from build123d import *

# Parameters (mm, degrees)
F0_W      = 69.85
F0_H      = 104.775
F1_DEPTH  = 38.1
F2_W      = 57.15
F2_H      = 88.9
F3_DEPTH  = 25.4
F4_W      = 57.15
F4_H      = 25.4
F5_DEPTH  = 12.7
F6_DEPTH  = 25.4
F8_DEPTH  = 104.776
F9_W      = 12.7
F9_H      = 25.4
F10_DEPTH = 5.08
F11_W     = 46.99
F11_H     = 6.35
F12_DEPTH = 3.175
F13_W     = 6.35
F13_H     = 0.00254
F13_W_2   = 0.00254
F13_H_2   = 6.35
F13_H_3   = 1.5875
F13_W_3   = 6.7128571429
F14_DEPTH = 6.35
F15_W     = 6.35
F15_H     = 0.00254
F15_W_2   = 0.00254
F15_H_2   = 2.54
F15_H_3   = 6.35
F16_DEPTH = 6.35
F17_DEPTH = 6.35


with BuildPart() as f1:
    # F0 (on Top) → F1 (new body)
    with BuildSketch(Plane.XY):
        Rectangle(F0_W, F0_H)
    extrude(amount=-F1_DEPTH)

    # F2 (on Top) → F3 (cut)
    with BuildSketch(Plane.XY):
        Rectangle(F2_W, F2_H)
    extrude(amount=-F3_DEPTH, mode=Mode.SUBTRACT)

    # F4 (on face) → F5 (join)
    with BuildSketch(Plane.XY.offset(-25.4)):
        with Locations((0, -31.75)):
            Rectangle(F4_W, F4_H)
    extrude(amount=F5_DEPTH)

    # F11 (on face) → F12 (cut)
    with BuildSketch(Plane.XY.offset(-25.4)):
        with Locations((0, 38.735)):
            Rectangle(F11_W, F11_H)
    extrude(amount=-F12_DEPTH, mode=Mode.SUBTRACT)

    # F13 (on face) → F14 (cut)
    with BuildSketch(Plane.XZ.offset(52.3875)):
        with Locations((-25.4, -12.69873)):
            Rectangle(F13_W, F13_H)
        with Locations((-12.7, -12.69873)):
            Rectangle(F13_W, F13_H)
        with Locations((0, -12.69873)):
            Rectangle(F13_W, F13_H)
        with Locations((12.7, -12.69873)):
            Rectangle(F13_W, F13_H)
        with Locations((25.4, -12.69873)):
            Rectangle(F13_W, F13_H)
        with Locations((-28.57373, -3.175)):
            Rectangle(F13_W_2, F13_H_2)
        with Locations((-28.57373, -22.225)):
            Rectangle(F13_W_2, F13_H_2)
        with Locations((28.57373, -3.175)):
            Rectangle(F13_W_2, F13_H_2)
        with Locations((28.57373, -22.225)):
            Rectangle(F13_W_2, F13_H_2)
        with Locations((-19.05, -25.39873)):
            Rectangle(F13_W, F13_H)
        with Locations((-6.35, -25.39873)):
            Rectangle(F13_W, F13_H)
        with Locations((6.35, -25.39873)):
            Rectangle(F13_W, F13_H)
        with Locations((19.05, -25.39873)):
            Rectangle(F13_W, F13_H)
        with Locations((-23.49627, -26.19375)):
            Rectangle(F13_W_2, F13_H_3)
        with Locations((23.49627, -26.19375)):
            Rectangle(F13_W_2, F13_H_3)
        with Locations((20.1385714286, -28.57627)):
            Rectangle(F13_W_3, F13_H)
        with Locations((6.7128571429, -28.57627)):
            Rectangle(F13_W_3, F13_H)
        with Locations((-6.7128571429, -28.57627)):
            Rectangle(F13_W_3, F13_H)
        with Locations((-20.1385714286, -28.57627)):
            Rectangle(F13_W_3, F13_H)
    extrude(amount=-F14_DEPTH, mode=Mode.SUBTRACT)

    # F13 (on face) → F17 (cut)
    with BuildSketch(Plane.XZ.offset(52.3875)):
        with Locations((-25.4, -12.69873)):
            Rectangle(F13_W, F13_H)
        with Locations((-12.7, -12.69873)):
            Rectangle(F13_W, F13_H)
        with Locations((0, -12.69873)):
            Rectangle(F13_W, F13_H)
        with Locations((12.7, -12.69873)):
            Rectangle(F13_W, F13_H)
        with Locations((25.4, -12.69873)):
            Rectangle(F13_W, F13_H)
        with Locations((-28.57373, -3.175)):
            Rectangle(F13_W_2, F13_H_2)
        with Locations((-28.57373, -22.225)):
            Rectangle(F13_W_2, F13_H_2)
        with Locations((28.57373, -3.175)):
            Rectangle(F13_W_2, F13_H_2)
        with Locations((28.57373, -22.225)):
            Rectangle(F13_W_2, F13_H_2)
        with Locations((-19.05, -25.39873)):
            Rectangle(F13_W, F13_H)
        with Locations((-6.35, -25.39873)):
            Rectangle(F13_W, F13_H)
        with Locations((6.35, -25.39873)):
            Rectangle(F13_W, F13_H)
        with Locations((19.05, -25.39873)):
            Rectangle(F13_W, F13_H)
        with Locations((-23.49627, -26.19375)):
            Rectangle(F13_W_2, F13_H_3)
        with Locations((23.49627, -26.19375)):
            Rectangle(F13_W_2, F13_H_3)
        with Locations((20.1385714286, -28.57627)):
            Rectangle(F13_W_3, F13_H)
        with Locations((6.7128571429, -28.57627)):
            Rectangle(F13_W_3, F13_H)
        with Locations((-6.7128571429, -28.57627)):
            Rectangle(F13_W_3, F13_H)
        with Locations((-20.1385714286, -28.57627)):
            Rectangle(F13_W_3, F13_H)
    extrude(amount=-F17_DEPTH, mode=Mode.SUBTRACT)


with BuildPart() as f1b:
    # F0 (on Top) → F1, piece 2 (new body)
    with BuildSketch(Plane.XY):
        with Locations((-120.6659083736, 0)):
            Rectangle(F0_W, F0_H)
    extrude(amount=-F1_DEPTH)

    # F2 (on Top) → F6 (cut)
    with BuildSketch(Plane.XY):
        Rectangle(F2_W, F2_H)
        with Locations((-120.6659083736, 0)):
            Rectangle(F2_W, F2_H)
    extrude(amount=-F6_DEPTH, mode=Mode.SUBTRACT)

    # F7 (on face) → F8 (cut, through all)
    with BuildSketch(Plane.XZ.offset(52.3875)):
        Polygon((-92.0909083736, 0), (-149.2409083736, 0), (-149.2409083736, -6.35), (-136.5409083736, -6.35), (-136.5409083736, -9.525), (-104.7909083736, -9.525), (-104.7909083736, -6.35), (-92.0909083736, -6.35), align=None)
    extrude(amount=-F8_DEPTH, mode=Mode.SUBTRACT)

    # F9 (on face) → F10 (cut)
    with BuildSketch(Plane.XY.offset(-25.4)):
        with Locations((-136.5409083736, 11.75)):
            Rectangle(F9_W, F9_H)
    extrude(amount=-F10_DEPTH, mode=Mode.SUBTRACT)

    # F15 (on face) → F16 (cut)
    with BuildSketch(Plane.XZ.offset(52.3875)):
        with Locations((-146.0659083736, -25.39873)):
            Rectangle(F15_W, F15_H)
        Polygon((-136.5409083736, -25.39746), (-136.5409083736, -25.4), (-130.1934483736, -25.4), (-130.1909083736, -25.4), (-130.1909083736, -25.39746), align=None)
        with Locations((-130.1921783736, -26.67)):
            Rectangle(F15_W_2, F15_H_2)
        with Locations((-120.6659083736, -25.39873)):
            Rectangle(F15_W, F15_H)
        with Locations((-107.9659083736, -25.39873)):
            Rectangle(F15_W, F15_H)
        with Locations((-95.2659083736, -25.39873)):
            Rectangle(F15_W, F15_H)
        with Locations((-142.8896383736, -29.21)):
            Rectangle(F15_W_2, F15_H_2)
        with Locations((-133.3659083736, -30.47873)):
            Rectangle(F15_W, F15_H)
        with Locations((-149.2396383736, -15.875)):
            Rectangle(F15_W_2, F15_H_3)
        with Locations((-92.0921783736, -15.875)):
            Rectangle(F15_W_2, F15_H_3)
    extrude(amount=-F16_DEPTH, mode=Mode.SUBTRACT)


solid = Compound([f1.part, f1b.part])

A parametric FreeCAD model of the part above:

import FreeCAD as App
import Part
import Sketcher
from FreeCAD import Vector
Q = App.Units.Quantity


def add_polygon(sketch, points):
    """Adds a closed chain of lines whose ends are joined by coincident constraints."""
    first, n = sketch.GeometryCount, len(points)
    for a, b in zip(points, points[1:] + points[:1]):
        sketch.addGeometry(Part.LineSegment(App.Vector(*a, 0), App.Vector(*b, 0)), False)
    for i in range(n):
        sketch.addConstraint(Sketcher.Constraint("Coincident", first + i, 2, first + (i + 1) % n, 1))

doc = App.newDocument("Part")
params = doc.addObject("Spreadsheet::Sheet", "Params")
for row, (alias, value) in enumerate([
    ("sketch1_width", "2.75 in"),
    ("sketch1_height", "4.125 in"),
    ("pad1_length", "1.5 in"),
    ("sketch2_height", "3.5 in"),
    ("sketch2_width", "2.25 in"),
    ("pocket1_length", "1 in"),
    ("sketch3_height", "1 in"),
    ("sketch3_width", "2.25 in"),
    ("pad2_length", "0.5 in"),
    ("sketch4_width", "1.85 in"),
    ("sketch4_height", "0.25 in"),
    ("pocket2_length", "0.125 in"),
    ("sketch5_width", "0.25 in"),
    ("sketch5_height", "0.0625 in"),
    ("pocket3_length", "0.25 in"),
    ("sketch6_width", "0.25 in"),
    ("sketch6_height", "0.0625 in"),
    ("pocket4_length", "0.25 in"),
    ("sketch7_width", "2.75 in"),
    ("sketch7_height", "4.125 in"),
    ("pad3_length", "1.5 in"),
    ("sketch8_height", "3.5 in"),
    ("sketch8_width", "2.25 in"),
    ("pocket5_length", "1 in"),
    ("sketch9_width", "0.5 in"),
    ("sketch9_width2", "2.25 in"),
    ("sketch9_height", "0.25 in"),
    ("sketch9_height2", "0.125 in"),
    ("sketch10_height", "1 in"),
    ("sketch10_width", "0.5 in"),
    ("pocket7_length", "0.2 in"),
    ("sketch11_height", "0.1 in"),
    ("sketch11_width", "0.25 in"),
    ("pocket8_length", "0.25 in"),
], start=1):
    params.set(f"A{row}", alias)
    params.set(f"B{row}", "=" + value)
    params.setAlias(f"B{row}", alias)

body = doc.addObject("PartDesign::Body", "Body")

# Sketch on XY plane
sketch1 = doc.addObject("Sketcher::SketchObject", "Sketch")
body.addObject(sketch1)
sketch1.AttachmentSupport = (doc.XY_Plane, [""])
sketch1.MapMode = "FlatFace"
add_polygon(sketch1, [(-34.925, 52.3875), (-34.925, -52.3875), (34.925, -52.3875), (34.925, 52.3875)])  # lines 0-3
sketch1.addConstraint([
    Sketcher.Constraint("Vertical", 0),
    Sketcher.Constraint("Horizontal", 1),
    Sketcher.Constraint("Vertical", 2),
    Sketcher.Constraint("Horizontal", 3),
    Sketcher.Constraint("Symmetric", 0, 2, 2, 2, -1, 1),
    Sketcher.Constraint("DistanceX", 1, 1, 1, 2, Q("2.75 in")),
    Sketcher.Constraint("DistanceY", 0, 2, 0, 1, Q("4.125 in")),
])
sketch1.setExpression("Constraints[9]", "Params.sketch1_width")
sketch1.setExpression("Constraints[10]", "Params.sketch1_height")
pad1 = doc.addObject("PartDesign::Pad", "Pad")
body.addObject(pad1)
pad1.Profile = sketch1
pad1.setExpression("Length", "Params.pad1_length")
pad1.Reversed = True

# Sketch on XY plane
sketch2 = doc.addObject("Sketcher::SketchObject", "Sketch001")
body.addObject(sketch2)
sketch2.AttachmentSupport = (doc.XY_Plane, [""])
sketch2.MapMode = "FlatFace"
add_polygon(sketch2, [(-28.575, 44.45), (-28.575, -44.45), (28.575, -44.45), (28.575, 44.45)])  # lines 0-3
sketch2.addConstraint([
    Sketcher.Constraint("Vertical", 0),
    Sketcher.Constraint("Horizontal", 1),
    Sketcher.Constraint("Vertical", 2),
    Sketcher.Constraint("Horizontal", 3),
    Sketcher.Constraint("Symmetric", 0, 2, 2, 2, -1, 1),
    Sketcher.Constraint("DistanceY", 0, 2, 0, 1, Q("3.5 in")),
    Sketcher.Constraint("DistanceX", 1, 1, 1, 2, Q("2.25 in")),
])
sketch2.setExpression("Constraints[9]", "Params.sketch2_height")
sketch2.setExpression("Constraints[10]", "Params.sketch2_width")
pocket1 = doc.addObject("PartDesign::Pocket", "Pocket")
body.addObject(pocket1)
pocket1.Profile = sketch2
pocket1.setExpression("Length", "Params.pocket1_length")

# Sketch on XY plane
sketch3 = doc.addObject("Sketcher::SketchObject", "Sketch002")
body.addObject(sketch3)
sketch3.AttachmentSupport = (doc.XY_Plane, [""])
sketch3.MapMode = "FlatFace"
sketch3.AttachmentOffset = App.Placement(Vector(0, 0, -1 * 25.4), App.Rotation())
add_polygon(sketch3, [(-28.575, -19.05), (-28.575, -44.45), (28.575, -44.45), (28.575, -19.05)])  # lines 0-3
sketch3.addConstraint([
    Sketcher.Constraint("Vertical", 0),
    Sketcher.Constraint("Horizontal", 1),
    Sketcher.Constraint("Vertical", 2),
    Sketcher.Constraint("Horizontal", 3),
    Sketcher.Constraint("DistanceY", 0, 2, 0, 1, Q("1 in")),
    Sketcher.Constraint("DistanceX", 1, 1, 1, 2, Q("2.25 in")),
    Sketcher.Constraint("DistanceY", 0, 2, -1, 1, Q("1.75 in")),
    Sketcher.Constraint("DistanceX", 0, 2, -1, 1, Q("1.125 in")),
])
sketch3.setExpression("Constraints[8]", "Params.sketch3_height")
sketch3.setExpression("Constraints[9]", "Params.sketch3_width")
pad2 = doc.addObject("PartDesign::Pad", "Pad001")
body.addObject(pad2)
pad2.Profile = sketch3
pad2.setExpression("Length", "Params.pad2_length")

# Sketch on XY plane
sketch4 = doc.addObject("Sketcher::SketchObject", "Sketch003")
body.addObject(sketch4)
sketch4.AttachmentSupport = (doc.XY_Plane, [""])
sketch4.MapMode = "FlatFace"
sketch4.AttachmentOffset = App.Placement(Vector(0, 0, -1 * 25.4), App.Rotation())
add_polygon(sketch4, [(-23.495, 41.91), (-23.495, 35.56), (23.495, 35.56), (23.495, 41.91)])  # lines 0-3
sketch4.addConstraint([
    Sketcher.Constraint("Vertical", 0),
    Sketcher.Constraint("Horizontal", 1),
    Sketcher.Constraint("Vertical", 2),
    Sketcher.Constraint("Horizontal", 3),
    Sketcher.Constraint("DistanceX", 1, 1, 1, 2, Q("1.85 in")),
    Sketcher.Constraint("DistanceY", 0, 2, 0, 1, Q("0.25 in")),
    Sketcher.Constraint("DistanceY", -1, 1, 0, 2, Q("1.4 in")),
    Sketcher.Constraint("DistanceX", 0, 2, -1, 1, Q("0.925 in")),
])
sketch4.setExpression("Constraints[8]", "Params.sketch4_width")
sketch4.setExpression("Constraints[9]", "Params.sketch4_height")
pocket2 = doc.addObject("PartDesign::Pocket", "Pocket001")
body.addObject(pocket2)
pocket2.Profile = sketch4
pocket2.setExpression("Length", "Params.pocket2_length")

# Sketch on XZ plane
sketch5 = doc.addObject("Sketcher::SketchObject", "Sketch004")
body.addObject(sketch5)
sketch5.AttachmentSupport = (doc.XZ_Plane, [""])
sketch5.MapMode = "FlatFace"
sketch5.AttachmentOffset = App.Placement(Vector(0, 0, 2.0625 * 25.4), App.Rotation())
add_polygon(sketch5, [(-28.575, -12.69746), (-28.575, -12.7), (-22.225, -12.7), (-22.225, -12.69746)])  # lines 0-3
add_polygon(sketch5, [(-15.875, -12.69746), (-15.875, -12.7), (-9.525, -12.7), (-9.525, -12.69746)])  # lines 4-7
add_polygon(sketch5, [(-3.175, -12.69746), (-3.175, -12.7), (3.175, -12.7), (3.175, -12.69746)])  # lines 8-11
add_polygon(sketch5, [(9.525, -12.69746), (9.525, -12.7), (15.875, -12.7), (15.875, -12.69746)])  # lines 12-15
add_polygon(sketch5, [(22.225, -12.69746), (22.225, -12.7), (28.575, -12.7), (28.575, -12.69746)])  # lines 16-19
add_polygon(sketch5, [(-28.575, 0), (-28.575, -6.35), (-28.57246, -6.35), (-28.57246, 0)])  # lines 20-23
add_polygon(sketch5, [(-28.575, -19.05), (-28.575, -25.4), (-28.57246, -25.4), (-28.57246, -19.05)])  # lines 24-27
add_polygon(sketch5, [(28.57246, 0), (28.57246, -6.35), (28.575, -6.35), (28.575, 0)])  # lines 28-31
add_polygon(sketch5, [(28.57246, -19.05), (28.57246, -25.4), (28.575, -25.4), (28.575, -19.05)])  # lines 32-35
add_polygon(sketch5, [(-22.225, -25.39746), (-22.225, -25.4), (-15.875, -25.4), (-15.875, -25.39746)])  # lines 36-39
add_polygon(sketch5, [(-9.525, -25.39746), (-9.525, -25.4), (-3.175, -25.4), (-3.175, -25.39746)])  # lines 40-43
add_polygon(sketch5, [(3.175, -25.39746), (3.175, -25.4), (9.525, -25.4), (9.525, -25.39746)])  # lines 44-47
add_polygon(sketch5, [(15.875, -25.39746), (15.875, -25.4), (22.225, -25.4), (22.225, -25.39746)])  # lines 48-51
add_polygon(sketch5, [(-23.49754, -25.4), (-23.49754, -26.9875), (-23.495, -26.9875), (-23.495, -25.4)])  # lines 52-55
add_polygon(sketch5, [(23.495, -25.4), (23.495, -26.9875), (23.49754, -26.9875), (23.49754, -25.4)])  # lines 56-59
add_polygon(sketch5, [(16.782143, -28.575), (16.782143, -28.57754), (23.495, -28.57754), (23.495, -28.575)])  # lines 60-63
add_polygon(sketch5, [(3.356429, -28.575), (3.356429, -28.57754), (10.069286, -28.57754), (10.069286, -28.575)])  # lines 64-67
add_polygon(sketch5, [(-10.069286, -28.575), (-10.069286, -28.57754), (-3.356429, -28.57754), (-3.356429, -28.575)])  # lines 68-71
add_polygon(sketch5, [(-23.495, -28.575), (-23.495, -28.57754), (-16.782143, -28.57754), (-16.782143, -28.575)])  # lines 72-75
sketch5.addConstraint([
    Sketcher.Constraint("Vertical", 0),
    Sketcher.Constraint("Horizontal", 1),
    Sketcher.Constraint("Vertical", 2),
    Sketcher.Constraint("Horizontal", 3),
    Sketcher.Constraint("Vertical", 4),
    Sketcher.Constraint("Horizontal", 5),
    Sketcher.Constraint("Vertical", 6),
    Sketcher.Constraint("Horizontal", 7),
    Sketcher.Constraint("Vertical", 8),
    Sketcher.Constraint("Horizontal", 9),
    Sketcher.Constraint("Vertical", 10),
    Sketcher.Constraint("Horizontal", 11),
    Sketcher.Constraint("Vertical", 12),
    Sketcher.Constraint("Horizontal", 13),
    Sketcher.Constraint("Vertical", 14),
    Sketcher.Constraint("Horizontal", 15),
    Sketcher.Constraint("Vertical", 16),
    Sketcher.Constraint("Horizontal", 17),
    Sketcher.Constraint("Vertical", 18),
    Sketcher.Constraint("Horizontal", 19),
    Sketcher.Constraint("Vertical", 20),
    Sketcher.Constraint("Horizontal", 21),
    Sketcher.Constraint("Vertical", 22),
    Sketcher.Constraint("Horizontal", 23),
    Sketcher.Constraint("Vertical", 24),
    Sketcher.Constraint("Horizontal", 25),
    Sketcher.Constraint("Vertical", 26),
    Sketcher.Constraint("Horizontal", 27),
    Sketcher.Constraint("Vertical", 28),
    Sketcher.Constraint("Horizontal", 29),
    Sketcher.Constraint("Vertical", 30),
    Sketcher.Constraint("Horizontal", 31),
    Sketcher.Constraint("Vertical", 32),
    Sketcher.Constraint("Horizontal", 33),
    Sketcher.Constraint("Vertical", 34),
    Sketcher.Constraint("Horizontal", 35),
    Sketcher.Constraint("Vertical", 36),
    Sketcher.Constraint("Horizontal", 37),
    Sketcher.Constraint("Vertical", 38),
    Sketcher.Constraint("Horizontal", 39),
    Sketcher.Constraint("Vertical", 40),
    Sketcher.Constraint("Horizontal", 41),
    Sketcher.Constraint("Vertical", 42),
    Sketcher.Constraint("Horizontal", 43),
    Sketcher.Constraint("Vertical", 44),
    Sketcher.Constraint("Horizontal", 45),
    Sketcher.Constraint("Vertical", 46),
    Sketcher.Constraint("Horizontal", 47),
    Sketcher.Constraint("Vertical", 48),
    Sketcher.Constraint("Horizontal", 49),
    Sketcher.Constraint("Vertical", 50),
    Sketcher.Constraint("Horizontal", 51),
    Sketcher.Constraint("Vertical", 52),
    Sketcher.Constraint("Horizontal", 53),
    Sketcher.Constraint("Vertical", 54),
    Sketcher.Constraint("Horizontal", 55),
    Sketcher.Constraint("Vertical", 56),
    Sketcher.Constraint("Horizontal", 57),
    Sketcher.Constraint("Vertical", 58),
    Sketcher.Constraint("Horizontal", 59),
    Sketcher.Constraint("Vertical", 60),
    Sketcher.Constraint("Horizontal", 61),
    Sketcher.Constraint("Vertical", 62),
    Sketcher.Constraint("Horizontal", 63),
    Sketcher.Constraint("Vertical", 64),
    Sketcher.Constraint("Horizontal", 65),
    Sketcher.Constraint("Vertical", 66),
    Sketcher.Constraint("Horizontal", 67),
    Sketcher.Constraint("Vertical", 68),
    Sketcher.Constraint("Horizontal", 69),
    Sketcher.Constraint("Vertical", 70),
    Sketcher.Constraint("Horizontal", 71),
    Sketcher.Constraint("Vertical", 72),
    Sketcher.Constraint("Horizontal", 73),
    Sketcher.Constraint("Vertical", 74),
    Sketcher.Constraint("Horizontal", 75),
    Sketcher.Constraint("Symmetric", 23, 2, 30, 2, -1, 1),
    Sketcher.Constraint("Symmetric", 5, 2, 12, 2, -2),
    Sketcher.Constraint("Symmetric", 7, 2, 14, 2, -2),
    Sketcher.Constraint("Symmetric", 1, 2, 16, 2, -2),
    Sketcher.Constraint("Symmetric", 3, 2, 18, 2, -2),
    Sketcher.Constraint("Symmetric", 21, 2, 28, 2, -2),
    Sketcher.Constraint("Symmetric", 25, 2, 32, 2, -2),
    Sketcher.Constraint("Symmetric", 27, 2, 34, 2, -2),
    Sketcher.Constraint("Symmetric", 41, 2, 44, 2, -2),
    Sketcher.Constraint("Symmetric", 43, 2, 46, 2, -2),
    Sketcher.Constraint("Symmetric", 37, 2, 48, 2, -2),
    Sketcher.Constraint("Symmetric", 39, 2, 50, 2, -2),
    Sketcher.Constraint("Symmetric", 53, 2, 56, 2, -2),
    Sketcher.Constraint("Symmetric", 55, 2, 58, 2, -2),
    Sketcher.Constraint("Symmetric", 65, 2, 68, 2, -2),
    Sketcher.Constraint("Symmetric", 67, 2, 70, 2, -2),
    Sketcher.Constraint("Symmetric", 61, 2, 72, 2, -2),
    Sketcher.Constraint("Symmetric", 63, 2, 74, 2, -2),
    Sketcher.Constraint("PointOnObject", 22, 2, -1),
    Sketcher.Constraint("Horizontal", 1, 2, 4, 2),
    Sketcher.Constraint("Horizontal", 3, 2, 6, 2),
    Sketcher.Constraint("Horizontal", 5, 2, 8, 2),
    Sketcher.Constraint("Horizontal", 7, 2, 10, 2),
    Sketcher.Constraint("Horizontal", 33, 2, 36, 2),
    Sketcher.Constraint("Horizontal", 37, 2, 40, 2),
    Sketcher.Constraint("Horizontal", 39, 2, 42, 2),
    Sketcher.Constraint("Horizontal", 49, 2, 54, 2),
    Sketcher.Constraint("Horizontal", 61, 2, 64, 2),
    Sketcher.Constraint("Horizontal", 63, 2, 66, 2),
    Sketcher.Constraint("Vertical", 3, 2, 20, 2),
    Sketcher.Constraint("Vertical", 23, 2, 24, 2),
    Sketcher.Constraint("Vertical", 22, 2, 25, 2),
    Sketcher.Constraint("Vertical", 2, 2, 36, 2),
    Sketcher.Constraint("Vertical", 7, 2, 37, 2),
    Sketcher.Constraint("Vertical", 6, 2, 40, 2),
    Sketcher.Constraint("Vertical", 11, 2, 41, 2),
    Sketcher.Constraint("Vertical", 10, 2, 44, 2),
    Sketcher.Constraint("Vertical", 59, 2, 61, 2),
    Sketcher.Constraint("Equal", 3, 5),
    Sketcher.Constraint("Equal", 7, 9),
    Sketcher.Constraint("Equal", 19, 37),
    Sketcher.Constraint("Equal", 39, 41),
    Sketcher.Constraint("Equal", 35, 53),
    Sketcher.Constraint("Equal", 63, 65),
    Sketcher.Constraint("Equal", 59, 0),
    Sketcher.Constraint("Equal", 51, 20),
    Sketcher.Constraint("Equal", 22, 24),
    Sketcher.Constraint("Equal", 18, 36),
    Sketcher.Constraint("Equal", 50, 60),
    Sketcher.Constraint("DistanceY", 24, 2, -1, 1, Q("1 in")),
    Sketcher.Constraint("DistanceX", 1, 1, 1, 2, Q("0.25 in")),
    Sketcher.Constraint("DistanceY", 0, 2, -1, 1, Q("0.5 in")),
    Sketcher.Constraint("DistanceY", 52, 2, 52, 1, Q("0.0625 in")),
    Sketcher.Constraint("DistanceX", 21, 1, 21, 2, Q("0.0001 in")),
    Sketcher.Constraint("DistanceX", 53, 2, -1, 1, Q("0.925 in")),
    Sketcher.Constraint("DistanceY", 62, 2, -1, 1, Q("1.125 in")),
    Sketcher.Constraint("DistanceX", 61, 1, 61, 2, 6.712857),
    Sketcher.Constraint("DistanceX", -1, 1, 64, 2, 3.356429),
])
sketch5.setExpression("Constraints[202]", "Params.sketch5_width")
sketch5.setExpression("Constraints[204]", "Params.sketch5_height")
pocket3 = doc.addObject("PartDesign::Pocket", "Pocket002")
body.addObject(pocket3)
pocket3.Profile = sketch5
pocket3.setExpression("Length", "Params.pocket3_length")

# Sketch on XZ plane
sketch6 = doc.addObject("Sketcher::SketchObject", "Sketch005")
body.addObject(sketch6)
sketch6.AttachmentSupport = (doc.XZ_Plane, [""])
sketch6.MapMode = "FlatFace"
sketch6.AttachmentOffset = App.Placement(Vector(0, 0, 2.0625 * 25.4), App.Rotation())
add_polygon(sketch6, [(-28.575, -12.69746), (-28.575, -12.7), (-22.225, -12.7), (-22.225, -12.69746)])  # lines 0-3
add_polygon(sketch6, [(-15.875, -12.69746), (-15.875, -12.7), (-9.525, -12.7), (-9.525, -12.69746)])  # lines 4-7
add_polygon(sketch6, [(-3.175, -12.69746), (-3.175, -12.7), (3.175, -12.7), (3.175, -12.69746)])  # lines 8-11
add_polygon(sketch6, [(9.525, -12.69746), (9.525, -12.7), (15.875, -12.7), (15.875, -12.69746)])  # lines 12-15
add_polygon(sketch6, [(22.225, -12.69746), (22.225, -12.7), (28.575, -12.7), (28.575, -12.69746)])  # lines 16-19
add_polygon(sketch6, [(-28.575, 0), (-28.575, -6.35), (-28.57246, -6.35), (-28.57246, 0)])  # lines 20-23
add_polygon(sketch6, [(-28.575, -19.05), (-28.575, -25.4), (-28.57246, -25.4), (-28.57246, -19.05)])  # lines 24-27
add_polygon(sketch6, [(28.57246, 0), (28.57246, -6.35), (28.575, -6.35), (28.575, 0)])  # lines 28-31
add_polygon(sketch6, [(28.57246, -19.05), (28.57246, -25.4), (28.575, -25.4), (28.575, -19.05)])  # lines 32-35
add_polygon(sketch6, [(-22.225, -25.39746), (-22.225, -25.4), (-15.875, -25.4), (-15.875, -25.39746)])  # lines 36-39
add_polygon(sketch6, [(-9.525, -25.39746), (-9.525, -25.4), (-3.175, -25.4), (-3.175, -25.39746)])  # lines 40-43
add_polygon(sketch6, [(3.175, -25.39746), (3.175, -25.4), (9.525, -25.4), (9.525, -25.39746)])  # lines 44-47
add_polygon(sketch6, [(15.875, -25.39746), (15.875, -25.4), (22.225, -25.4), (22.225, -25.39746)])  # lines 48-51
add_polygon(sketch6, [(-23.49754, -25.4), (-23.49754, -26.9875), (-23.495, -26.9875), (-23.495, -25.4)])  # lines 52-55
add_polygon(sketch6, [(23.495, -25.4), (23.495, -26.9875), (23.49754, -26.9875), (23.49754, -25.4)])  # lines 56-59
add_polygon(sketch6, [(16.782143, -28.575), (16.782143, -28.57754), (23.495, -28.57754), (23.495, -28.575)])  # lines 60-63
add_polygon(sketch6, [(3.356429, -28.575), (3.356429, -28.57754), (10.069286, -28.57754), (10.069286, -28.575)])  # lines 64-67
add_polygon(sketch6, [(-10.069286, -28.575), (-10.069286, -28.57754), (-3.356429, -28.57754), (-3.356429, -28.575)])  # lines 68-71
add_polygon(sketch6, [(-23.495, -28.575), (-23.495, -28.57754), (-16.782143, -28.57754), (-16.782143, -28.575)])  # lines 72-75
sketch6.addConstraint([
    Sketcher.Constraint("Vertical", 0),
    Sketcher.Constraint("Horizontal", 1),
    Sketcher.Constraint("Vertical", 2),
    Sketcher.Constraint("Horizontal", 3),
    Sketcher.Constraint("Vertical", 4),
    Sketcher.Constraint("Horizontal", 5),
    Sketcher.Constraint("Vertical", 6),
    Sketcher.Constraint("Horizontal", 7),
    Sketcher.Constraint("Vertical", 8),
    Sketcher.Constraint("Horizontal", 9),
    Sketcher.Constraint("Vertical", 10),
    Sketcher.Constraint("Horizontal", 11),
    Sketcher.Constraint("Vertical", 12),
    Sketcher.Constraint("Horizontal", 13),
    Sketcher.Constraint("Vertical", 14),
    Sketcher.Constraint("Horizontal", 15),
    Sketcher.Constraint("Vertical", 16),
    Sketcher.Constraint("Horizontal", 17),
    Sketcher.Constraint("Vertical", 18),
    Sketcher.Constraint("Horizontal", 19),
    Sketcher.Constraint("Vertical", 20),
    Sketcher.Constraint("Horizontal", 21),
    Sketcher.Constraint("Vertical", 22),
    Sketcher.Constraint("Horizontal", 23),
    Sketcher.Constraint("Vertical", 24),
    Sketcher.Constraint("Horizontal", 25),
    Sketcher.Constraint("Vertical", 26),
    Sketcher.Constraint("Horizontal", 27),
    Sketcher.Constraint("Vertical", 28),
    Sketcher.Constraint("Horizontal", 29),
    Sketcher.Constraint("Vertical", 30),
    Sketcher.Constraint("Horizontal", 31),
    Sketcher.Constraint("Vertical", 32),
    Sketcher.Constraint("Horizontal", 33),
    Sketcher.Constraint("Vertical", 34),
    Sketcher.Constraint("Horizontal", 35),
    Sketcher.Constraint("Vertical", 36),
    Sketcher.Constraint("Horizontal", 37),
    Sketcher.Constraint("Vertical", 38),
    Sketcher.Constraint("Horizontal", 39),
    Sketcher.Constraint("Vertical", 40),
    Sketcher.Constraint("Horizontal", 41),
    Sketcher.Constraint("Vertical", 42),
    Sketcher.Constraint("Horizontal", 43),
    Sketcher.Constraint("Vertical", 44),
    Sketcher.Constraint("Horizontal", 45),
    Sketcher.Constraint("Vertical", 46),
    Sketcher.Constraint("Horizontal", 47),
    Sketcher.Constraint("Vertical", 48),
    Sketcher.Constraint("Horizontal", 49),
    Sketcher.Constraint("Vertical", 50),
    Sketcher.Constraint("Horizontal", 51),
    Sketcher.Constraint("Vertical", 52),
    Sketcher.Constraint("Horizontal", 53),
    Sketcher.Constraint("Vertical", 54),
    Sketcher.Constraint("Horizontal", 55),
    Sketcher.Constraint("Vertical", 56),
    Sketcher.Constraint("Horizontal", 57),
    Sketcher.Constraint("Vertical", 58),
    Sketcher.Constraint("Horizontal", 59),
    Sketcher.Constraint("Vertical", 60),
    Sketcher.Constraint("Horizontal", 61),
    Sketcher.Constraint("Vertical", 62),
    Sketcher.Constraint("Horizontal", 63),
    Sketcher.Constraint("Vertical", 64),
    Sketcher.Constraint("Horizontal", 65),
    Sketcher.Constraint("Vertical", 66),
    Sketcher.Constraint("Horizontal", 67),
    Sketcher.Constraint("Vertical", 68),
    Sketcher.Constraint("Horizontal", 69),
    Sketcher.Constraint("Vertical", 70),
    Sketcher.Constraint("Horizontal", 71),
    Sketcher.Constraint("Vertical", 72),
    Sketcher.Constraint("Horizontal", 73),
    Sketcher.Constraint("Vertical", 74),
    Sketcher.Constraint("Horizontal", 75),
    Sketcher.Constraint("Symmetric", 23, 2, 30, 2, -1, 1),
    Sketcher.Constraint("Symmetric", 5, 2, 12, 2, -2),
    Sketcher.Constraint("Symmetric", 7, 2, 14, 2, -2),
    Sketcher.Constraint("Symmetric", 1, 2, 16, 2, -2),
    Sketcher.Constraint("Symmetric", 3, 2, 18, 2, -2),
    Sketcher.Constraint("Symmetric", 21, 2, 28, 2, -2),
    Sketcher.Constraint("Symmetric", 25, 2, 32, 2, -2),
    Sketcher.Constraint("Symmetric", 27, 2, 34, 2, -2),
    Sketcher.Constraint("Symmetric", 41, 2, 44, 2, -2),
    Sketcher.Constraint("Symmetric", 43, 2, 46, 2, -2),
    Sketcher.Constraint("Symmetric", 37, 2, 48, 2, -2),
    Sketcher.Constraint("Symmetric", 39, 2, 50, 2, -2),
    Sketcher.Constraint("Symmetric", 53, 2, 56, 2, -2),
    Sketcher.Constraint("Symmetric", 55, 2, 58, 2, -2),
    Sketcher.Constraint("Symmetric", 65, 2, 68, 2, -2),
    Sketcher.Constraint("Symmetric", 67, 2, 70, 2, -2),
    Sketcher.Constraint("Symmetric", 61, 2, 72, 2, -2),
    Sketcher.Constraint("Symmetric", 63, 2, 74, 2, -2),
    Sketcher.Constraint("PointOnObject", 22, 2, -1),
    Sketcher.Constraint("Horizontal", 1, 2, 4, 2),
    Sketcher.Constraint("Horizontal", 3, 2, 6, 2),
    Sketcher.Constraint("Horizontal", 5, 2, 8, 2),
    Sketcher.Constraint("Horizontal", 7, 2, 10, 2),
    Sketcher.Constraint("Horizontal", 33, 2, 36, 2),
    Sketcher.Constraint("Horizontal", 37, 2, 40, 2),
    Sketcher.Constraint("Horizontal", 39, 2, 42, 2),
    Sketcher.Constraint("Horizontal", 49, 2, 54, 2),
    Sketcher.Constraint("Horizontal", 61, 2, 64, 2),
    Sketcher.Constraint("Horizontal", 63, 2, 66, 2),
    Sketcher.Constraint("Vertical", 3, 2, 20, 2),
    Sketcher.Constraint("Vertical", 23, 2, 24, 2),
    Sketcher.Constraint("Vertical", 22, 2, 25, 2),
    Sketcher.Constraint("Vertical", 2, 2, 36, 2),
    Sketcher.Constraint("Vertical", 7, 2, 37, 2),
    Sketcher.Constraint("Vertical", 6, 2, 40, 2),
    Sketcher.Constraint("Vertical", 11, 2, 41, 2),
    Sketcher.Constraint("Vertical", 10, 2, 44, 2),
    Sketcher.Constraint("Vertical", 59, 2, 61, 2),
    Sketcher.Constraint("Equal", 3, 5),
    Sketcher.Constraint("Equal", 7, 9),
    Sketcher.Constraint("Equal", 19, 37),
    Sketcher.Constraint("Equal", 39, 41),
    Sketcher.Constraint("Equal", 35, 53),
    Sketcher.Constraint("Equal", 63, 65),
    Sketcher.Constraint("Equal", 59, 0),
    Sketcher.Constraint("Equal", 51, 20),
    Sketcher.Constraint("Equal", 22, 24),
    Sketcher.Constraint("Equal", 18, 36),
    Sketcher.Constraint("Equal", 50, 60),
    Sketcher.Constraint("DistanceY", 24, 2, -1, 1, Q("1 in")),
    Sketcher.Constraint("DistanceX", 1, 1, 1, 2, Q("0.25 in")),
    Sketcher.Constraint("DistanceY", 0, 2, -1, 1, Q("0.5 in")),
    Sketcher.Constraint("DistanceY", 52, 2, 52, 1, Q("0.0625 in")),
    Sketcher.Constraint("DistanceX", 21, 1, 21, 2, Q("0.0001 in")),
    Sketcher.Constraint("DistanceX", 53, 2, -1, 1, Q("0.925 in")),
    Sketcher.Constraint("DistanceY", 62, 2, -1, 1, Q("1.125 in")),
    Sketcher.Constraint("DistanceX", 61, 1, 61, 2, 6.712857),
    Sketcher.Constraint("DistanceX", -1, 1, 64, 2, 3.356429),
])
sketch6.setExpression("Constraints[202]", "Params.sketch6_width")
sketch6.setExpression("Constraints[204]", "Params.sketch6_height")
pocket4 = doc.addObject("PartDesign::Pocket", "Pocket003")
body.addObject(pocket4)
pocket4.Profile = sketch6
pocket4.setExpression("Length", "Params.pocket4_length")
body2 = doc.addObject("PartDesign::Body", "Body001")

# Sketch on XY plane
sketch7 = doc.addObject("Sketcher::SketchObject", "Sketch006")
body2.addObject(sketch7)
sketch7.AttachmentSupport = (doc.getObject("XY_Plane001"), [""])
sketch7.MapMode = "FlatFace"
add_polygon(sketch7, [(-155.590908, 52.3875), (-155.590908, -52.3875), (-85.740908, -52.3875), (-85.740908, 52.3875)])  # lines 0-3
sketch7.addConstraint([
    Sketcher.Constraint("Vertical", 0),
    Sketcher.Constraint("Horizontal", 1),
    Sketcher.Constraint("Vertical", 2),
    Sketcher.Constraint("Horizontal", 3),
    Sketcher.Constraint("DistanceX", 1, 1, 1, 2, Q("2.75 in")),
    Sketcher.Constraint("DistanceY", 0, 2, 0, 1, Q("4.125 in")),
    Sketcher.Constraint("DistanceY", 0, 2, -1, 1, Q("2.0625 in")),
    Sketcher.Constraint("DistanceX", 0, 2, -1, 1, 155.590908),
])
sketch7.setExpression("Constraints[8]", "Params.sketch7_width")
sketch7.setExpression("Constraints[9]", "Params.sketch7_height")
pad3 = doc.addObject("PartDesign::Pad", "Pad002")
body2.addObject(pad3)
pad3.Profile = sketch7
pad3.setExpression("Length", "Params.pad3_length")
pad3.Reversed = True

# Sketch on XY plane
sketch8 = doc.addObject("Sketcher::SketchObject", "Sketch007")
body2.addObject(sketch8)
sketch8.AttachmentSupport = (doc.getObject("XY_Plane001"), [""])
sketch8.MapMode = "FlatFace"
add_polygon(sketch8, [(-28.575, 44.45), (-28.575, -44.45), (28.575, -44.45), (28.575, 44.45)])  # lines 0-3
add_polygon(sketch8, [(-149.240908, 44.45), (-149.240908, -44.45), (-92.090908, -44.45), (-92.090908, 44.45)])  # lines 4-7
sketch8.addConstraint([
    Sketcher.Constraint("Vertical", 0),
    Sketcher.Constraint("Horizontal", 1),
    Sketcher.Constraint("Vertical", 2),
    Sketcher.Constraint("Horizontal", 3),
    Sketcher.Constraint("Vertical", 4),
    Sketcher.Constraint("Horizontal", 5),
    Sketcher.Constraint("Vertical", 6),
    Sketcher.Constraint("Horizontal", 7),
    Sketcher.Constraint("Symmetric", 0, 2, 2, 2, -1, 1),
    Sketcher.Constraint("Horizontal", 1, 2, 4, 2),
    Sketcher.Constraint("Horizontal", 3, 2, 6, 2),
    Sketcher.Constraint("Equal", 3, 5),
    Sketcher.Constraint("DistanceY", 0, 2, 0, 1, Q("3.5 in")),
    Sketcher.Constraint("DistanceX", 1, 1, 1, 2, Q("2.25 in")),
    Sketcher.Constraint("DistanceX", 4, 2, -1, 1, 149.240908),
])
sketch8.setExpression("Constraints[20]", "Params.sketch8_height")
sketch8.setExpression("Constraints[21]", "Params.sketch8_width")
pocket5 = doc.addObject("PartDesign::Pocket", "Pocket004")
body2.addObject(pocket5)
pocket5.Profile = sketch8
pocket5.setExpression("Length", "Params.pocket5_length")

# Sketch on XZ plane
sketch9 = doc.addObject("Sketcher::SketchObject", "Sketch008")
body2.addObject(sketch9)
sketch9.AttachmentSupport = (doc.getObject("XZ_Plane001"), [""])
sketch9.MapMode = "FlatFace"
sketch9.AttachmentOffset = App.Placement(Vector(0, 0, 2.0625 * 25.4), App.Rotation())
add_polygon(sketch9, [(-92.090908, 0), (-149.240908, 0), (-149.240908, -6.35), (-136.540908, -6.35), (-136.540908, -9.525), (-104.790908, -9.525), (-104.790908, -6.35), (-92.090908, -6.35)])  # lines 0-7
sketch9.addConstraint([
    Sketcher.Constraint("Horizontal", 0),
    Sketcher.Constraint("Vertical", 1),
    Sketcher.Constraint("Horizontal", 2),
    Sketcher.Constraint("Vertical", 3),
    Sketcher.Constraint("Horizontal", 4),
    Sketcher.Constraint("Vertical", 5),
    Sketcher.Constraint("Horizontal", 6),
    Sketcher.Constraint("Vertical", 7),
    Sketcher.Constraint("PointOnObject", 0, 2, -1),
    Sketcher.Constraint("Horizontal", 2, 2, 5, 2),
    Sketcher.Constraint("Equal", 2, 6),
    Sketcher.Constraint("DistanceX", 2, 1, 2, 2, Q("0.5 in")),
    Sketcher.Constraint("DistanceX", 0, 2, 0, 1, Q("2.25 in")),
    Sketcher.Constraint("DistanceY", 1, 2, 1, 1, Q("0.25 in")),
    Sketcher.Constraint("DistanceY", 3, 2, 3, 1, Q("0.125 in")),
    Sketcher.Constraint("DistanceX", 0, 2, -1, 1, 149.240908),
])
sketch9.setExpression("Constraints[19]", "Params.sketch9_width")
sketch9.setExpression("Constraints[20]", "Params.sketch9_width2")
sketch9.setExpression("Constraints[21]", "Params.sketch9_height")
sketch9.setExpression("Constraints[22]", "Params.sketch9_height2")
pocket6 = doc.addObject("PartDesign::Pocket", "Pocket005")
body2.addObject(pocket6)
pocket6.Profile = sketch9
pocket6.Type = "ThroughAll"

# Sketch on XY plane
sketch10 = doc.addObject("Sketcher::SketchObject", "Sketch009")
body2.addObject(sketch10)
sketch10.AttachmentSupport = (doc.getObject("XY_Plane001"), [""])
sketch10.MapMode = "FlatFace"
sketch10.AttachmentOffset = App.Placement(Vector(0, 0, -1 * 25.4), App.Rotation())
add_polygon(sketch10, [(-142.890908, 24.45), (-142.890908, -0.95), (-130.190908, -0.95), (-130.190908, 24.45)])  # lines 0-3
sketch10.addConstraint([
    Sketcher.Constraint("Vertical", 0),
    Sketcher.Constraint("Horizontal", 1),
    Sketcher.Constraint("Vertical", 2),
    Sketcher.Constraint("Horizontal", 3),
    Sketcher.Constraint("DistanceY", 0, 2, 0, 1, Q("1 in")),
    Sketcher.Constraint("DistanceX", 1, 1, 1, 2, Q("0.5 in")),
    Sketcher.Constraint("DistanceY", 0, 2, -1, 1, 0.95),
    Sketcher.Constraint("DistanceX", 0, 2, -1, 1, 142.890908),
])
sketch10.setExpression("Constraints[8]", "Params.sketch10_height")
sketch10.setExpression("Constraints[9]", "Params.sketch10_width")
pocket7 = doc.addObject("PartDesign::Pocket", "Pocket006")
body2.addObject(pocket7)
pocket7.Profile = sketch10
pocket7.setExpression("Length", "Params.pocket7_length")

# Sketch on XZ plane
sketch11 = doc.addObject("Sketcher::SketchObject", "Sketch010")
body2.addObject(sketch11)
sketch11.AttachmentSupport = (doc.getObject("XZ_Plane001"), [""])
sketch11.MapMode = "FlatFace"
sketch11.AttachmentOffset = App.Placement(Vector(0, 0, 2.0625 * 25.4), App.Rotation())
add_polygon(sketch11, [(-149.240908, -25.39746), (-149.240908, -25.4), (-142.890908, -25.4), (-142.890908, -25.39746)])  # lines 0-3
add_polygon(sketch11, [(-136.540908, -25.39746), (-136.540908, -25.4), (-130.193448, -25.4), (-130.193448, -27.94), (-130.190908, -27.94), (-130.190908, -25.39746)])  # lines 4-9
add_polygon(sketch11, [(-123.840908, -25.39746), (-123.840908, -25.4), (-117.490908, -25.4), (-117.490908, -25.39746)])  # lines 10-13
add_polygon(sketch11, [(-111.140908, -25.39746), (-111.140908, -25.4), (-104.790908, -25.4), (-104.790908, -25.39746)])  # lines 14-17
add_polygon(sketch11, [(-98.440908, -25.39746), (-98.440908, -25.4), (-92.090908, -25.4), (-92.090908, -25.39746)])  # lines 18-21
add_polygon(sketch11, [(-142.890908, -27.94), (-142.890908, -30.48), (-142.888368, -30.48), (-142.888368, -27.94)])  # lines 22-25
add_polygon(sketch11, [(-136.540908, -30.47746), (-136.540908, -30.48), (-130.190908, -30.48), (-130.190908, -30.47746)])  # lines 26-29
add_polygon(sketch11, [(-149.240908, -12.7), (-149.240908, -19.05), (-149.238368, -19.05), (-149.238368, -12.7)])  # lines 30-33
add_polygon(sketch11, [(-92.093448, -12.7), (-92.093448, -19.05), (-92.090908, -19.05), (-92.090908, -12.7)])  # lines 34-37
sketch11.addConstraint([
    Sketcher.Constraint("Vertical", 0),
    Sketcher.Constraint("Horizontal", 1),
    Sketcher.Constraint("Vertical", 2),
    Sketcher.Constraint("Horizontal", 3),
    Sketcher.Constraint("Vertical", 4),
    Sketcher.Constraint("Horizontal", 5),
    Sketcher.Constraint("Vertical", 6),
    Sketcher.Constraint("Horizontal", 7),
    Sketcher.Constraint("Vertical", 8),
    Sketcher.Constraint("Horizontal", 9),
    Sketcher.Constraint("Vertical", 10),
    Sketcher.Constraint("Horizontal", 11),
    Sketcher.Constraint("Vertical", 12),
    Sketcher.Constraint("Horizontal", 13),
    Sketcher.Constraint("Vertical", 14),
    Sketcher.Constraint("Horizontal", 15),
    Sketcher.Constraint("Vertical", 16),
    Sketcher.Constraint("Horizontal", 17),
    Sketcher.Constraint("Vertical", 18),
    Sketcher.Constraint("Horizontal", 19),
    Sketcher.Constraint("Vertical", 20),
    Sketcher.Constraint("Horizontal", 21),
    Sketcher.Constraint("Vertical", 22),
    Sketcher.Constraint("Horizontal", 23),
    Sketcher.Constraint("Vertical", 24),
    Sketcher.Constraint("Horizontal", 25),
    Sketcher.Constraint("Vertical", 26),
    Sketcher.Constraint("Horizontal", 27),
    Sketcher.Constraint("Vertical", 28),
    Sketcher.Constraint("Horizontal", 29),
    Sketcher.Constraint("Vertical", 30),
    Sketcher.Constraint("Horizontal", 31),
    Sketcher.Constraint("Vertical", 32),
    Sketcher.Constraint("Horizontal", 33),
    Sketcher.Constraint("Vertical", 34),
    Sketcher.Constraint("Horizontal", 35),
    Sketcher.Constraint("Vertical", 36),
    Sketcher.Constraint("Horizontal", 37),
    Sketcher.Constraint("Horizontal", 1, 2, 4, 2),
    Sketcher.Constraint("Horizontal", 3, 2, 8, 2),
    Sketcher.Constraint("Horizontal", 5, 2, 10, 2),
    Sketcher.Constraint("Horizontal", 9, 2, 12, 2),
    Sketcher.Constraint("Horizontal", 11, 2, 14, 2),
    Sketcher.Constraint("Horizontal", 13, 2, 16, 2),
    Sketcher.Constraint("Horizontal", 15, 2, 18, 2),
    Sketcher.Constraint("Horizontal", 17, 2, 20, 2),
    Sketcher.Constraint("Horizontal", 7, 2, 24, 2),
    Sketcher.Constraint("Horizontal", 23, 2, 26, 2),
    Sketcher.Constraint("Horizontal", 31, 2, 34, 2),
    Sketcher.Constraint("Horizontal", 33, 2, 36, 2),
    Sketcher.Constraint("Vertical", 2, 2, 22, 2),
    Sketcher.Constraint("Vertical", 9, 2, 26, 2),
    Sketcher.Constraint("Vertical", 8, 2, 27, 2),
    Sketcher.Constraint("Vertical", 3, 2, 30, 2),
    Sketcher.Constraint("Vertical", 20, 2, 35, 2),
    Sketcher.Constraint("Equal", 3, 9),
    Sketcher.Constraint("Equal", 9, 11),
    Sketcher.Constraint("Equal", 13, 15),
    Sketcher.Constraint("Equal", 17, 19),
    Sketcher.Constraint("Equal", 7, 23),
    Sketcher.Constraint("Equal", 25, 31),
    Sketcher.Constraint("Equal", 33, 35),
    Sketcher.Constraint("Equal", 37, 0),
    Sketcher.Constraint("Equal", 6, 22),
    Sketcher.Constraint("Equal", 20, 26),
    Sketcher.Constraint("Equal", 29, 30),
    Sketcher.Constraint("DistanceY", 6, 2, 6, 1, Q("0.1 in")),
    Sketcher.Constraint("DistanceY", 0, 2, -1, 1, Q("1 in")),
    Sketcher.Constraint("DistanceX", 1, 1, 1, 2, Q("0.25 in")),
    Sketcher.Constraint("DistanceY", 32, 2, -1, 1, Q("0.5 in")),
    Sketcher.Constraint("DistanceX", 0, 2, 4, 2, Q("0.5 in")),
    Sketcher.Constraint("DistanceX", 4, 2, 10, 2, Q("0.5 in")),
    Sketcher.Constraint("DistanceX", 10, 2, 14, 2, Q("0.5 in")),
    Sketcher.Constraint("DistanceX", 14, 2, 18, 2, Q("0.5 in")),
    Sketcher.Constraint("DistanceX", 5, 1, 5, 2, Q("0.2499 in")),
    Sketcher.Constraint("DistanceX", 0, 2, -1, 1, 149.240908),
])
sketch11.setExpression("Constraints[104]", "Params.sketch11_height")
sketch11.setExpression("Constraints[106]", "Params.sketch11_width")
pocket8 = doc.addObject("PartDesign::Pocket", "Pocket007")
body2.addObject(pocket8)
pocket8.Profile = sketch11
pocket8.setExpression("Length", "Params.pocket8_length")

doc.recompute()
